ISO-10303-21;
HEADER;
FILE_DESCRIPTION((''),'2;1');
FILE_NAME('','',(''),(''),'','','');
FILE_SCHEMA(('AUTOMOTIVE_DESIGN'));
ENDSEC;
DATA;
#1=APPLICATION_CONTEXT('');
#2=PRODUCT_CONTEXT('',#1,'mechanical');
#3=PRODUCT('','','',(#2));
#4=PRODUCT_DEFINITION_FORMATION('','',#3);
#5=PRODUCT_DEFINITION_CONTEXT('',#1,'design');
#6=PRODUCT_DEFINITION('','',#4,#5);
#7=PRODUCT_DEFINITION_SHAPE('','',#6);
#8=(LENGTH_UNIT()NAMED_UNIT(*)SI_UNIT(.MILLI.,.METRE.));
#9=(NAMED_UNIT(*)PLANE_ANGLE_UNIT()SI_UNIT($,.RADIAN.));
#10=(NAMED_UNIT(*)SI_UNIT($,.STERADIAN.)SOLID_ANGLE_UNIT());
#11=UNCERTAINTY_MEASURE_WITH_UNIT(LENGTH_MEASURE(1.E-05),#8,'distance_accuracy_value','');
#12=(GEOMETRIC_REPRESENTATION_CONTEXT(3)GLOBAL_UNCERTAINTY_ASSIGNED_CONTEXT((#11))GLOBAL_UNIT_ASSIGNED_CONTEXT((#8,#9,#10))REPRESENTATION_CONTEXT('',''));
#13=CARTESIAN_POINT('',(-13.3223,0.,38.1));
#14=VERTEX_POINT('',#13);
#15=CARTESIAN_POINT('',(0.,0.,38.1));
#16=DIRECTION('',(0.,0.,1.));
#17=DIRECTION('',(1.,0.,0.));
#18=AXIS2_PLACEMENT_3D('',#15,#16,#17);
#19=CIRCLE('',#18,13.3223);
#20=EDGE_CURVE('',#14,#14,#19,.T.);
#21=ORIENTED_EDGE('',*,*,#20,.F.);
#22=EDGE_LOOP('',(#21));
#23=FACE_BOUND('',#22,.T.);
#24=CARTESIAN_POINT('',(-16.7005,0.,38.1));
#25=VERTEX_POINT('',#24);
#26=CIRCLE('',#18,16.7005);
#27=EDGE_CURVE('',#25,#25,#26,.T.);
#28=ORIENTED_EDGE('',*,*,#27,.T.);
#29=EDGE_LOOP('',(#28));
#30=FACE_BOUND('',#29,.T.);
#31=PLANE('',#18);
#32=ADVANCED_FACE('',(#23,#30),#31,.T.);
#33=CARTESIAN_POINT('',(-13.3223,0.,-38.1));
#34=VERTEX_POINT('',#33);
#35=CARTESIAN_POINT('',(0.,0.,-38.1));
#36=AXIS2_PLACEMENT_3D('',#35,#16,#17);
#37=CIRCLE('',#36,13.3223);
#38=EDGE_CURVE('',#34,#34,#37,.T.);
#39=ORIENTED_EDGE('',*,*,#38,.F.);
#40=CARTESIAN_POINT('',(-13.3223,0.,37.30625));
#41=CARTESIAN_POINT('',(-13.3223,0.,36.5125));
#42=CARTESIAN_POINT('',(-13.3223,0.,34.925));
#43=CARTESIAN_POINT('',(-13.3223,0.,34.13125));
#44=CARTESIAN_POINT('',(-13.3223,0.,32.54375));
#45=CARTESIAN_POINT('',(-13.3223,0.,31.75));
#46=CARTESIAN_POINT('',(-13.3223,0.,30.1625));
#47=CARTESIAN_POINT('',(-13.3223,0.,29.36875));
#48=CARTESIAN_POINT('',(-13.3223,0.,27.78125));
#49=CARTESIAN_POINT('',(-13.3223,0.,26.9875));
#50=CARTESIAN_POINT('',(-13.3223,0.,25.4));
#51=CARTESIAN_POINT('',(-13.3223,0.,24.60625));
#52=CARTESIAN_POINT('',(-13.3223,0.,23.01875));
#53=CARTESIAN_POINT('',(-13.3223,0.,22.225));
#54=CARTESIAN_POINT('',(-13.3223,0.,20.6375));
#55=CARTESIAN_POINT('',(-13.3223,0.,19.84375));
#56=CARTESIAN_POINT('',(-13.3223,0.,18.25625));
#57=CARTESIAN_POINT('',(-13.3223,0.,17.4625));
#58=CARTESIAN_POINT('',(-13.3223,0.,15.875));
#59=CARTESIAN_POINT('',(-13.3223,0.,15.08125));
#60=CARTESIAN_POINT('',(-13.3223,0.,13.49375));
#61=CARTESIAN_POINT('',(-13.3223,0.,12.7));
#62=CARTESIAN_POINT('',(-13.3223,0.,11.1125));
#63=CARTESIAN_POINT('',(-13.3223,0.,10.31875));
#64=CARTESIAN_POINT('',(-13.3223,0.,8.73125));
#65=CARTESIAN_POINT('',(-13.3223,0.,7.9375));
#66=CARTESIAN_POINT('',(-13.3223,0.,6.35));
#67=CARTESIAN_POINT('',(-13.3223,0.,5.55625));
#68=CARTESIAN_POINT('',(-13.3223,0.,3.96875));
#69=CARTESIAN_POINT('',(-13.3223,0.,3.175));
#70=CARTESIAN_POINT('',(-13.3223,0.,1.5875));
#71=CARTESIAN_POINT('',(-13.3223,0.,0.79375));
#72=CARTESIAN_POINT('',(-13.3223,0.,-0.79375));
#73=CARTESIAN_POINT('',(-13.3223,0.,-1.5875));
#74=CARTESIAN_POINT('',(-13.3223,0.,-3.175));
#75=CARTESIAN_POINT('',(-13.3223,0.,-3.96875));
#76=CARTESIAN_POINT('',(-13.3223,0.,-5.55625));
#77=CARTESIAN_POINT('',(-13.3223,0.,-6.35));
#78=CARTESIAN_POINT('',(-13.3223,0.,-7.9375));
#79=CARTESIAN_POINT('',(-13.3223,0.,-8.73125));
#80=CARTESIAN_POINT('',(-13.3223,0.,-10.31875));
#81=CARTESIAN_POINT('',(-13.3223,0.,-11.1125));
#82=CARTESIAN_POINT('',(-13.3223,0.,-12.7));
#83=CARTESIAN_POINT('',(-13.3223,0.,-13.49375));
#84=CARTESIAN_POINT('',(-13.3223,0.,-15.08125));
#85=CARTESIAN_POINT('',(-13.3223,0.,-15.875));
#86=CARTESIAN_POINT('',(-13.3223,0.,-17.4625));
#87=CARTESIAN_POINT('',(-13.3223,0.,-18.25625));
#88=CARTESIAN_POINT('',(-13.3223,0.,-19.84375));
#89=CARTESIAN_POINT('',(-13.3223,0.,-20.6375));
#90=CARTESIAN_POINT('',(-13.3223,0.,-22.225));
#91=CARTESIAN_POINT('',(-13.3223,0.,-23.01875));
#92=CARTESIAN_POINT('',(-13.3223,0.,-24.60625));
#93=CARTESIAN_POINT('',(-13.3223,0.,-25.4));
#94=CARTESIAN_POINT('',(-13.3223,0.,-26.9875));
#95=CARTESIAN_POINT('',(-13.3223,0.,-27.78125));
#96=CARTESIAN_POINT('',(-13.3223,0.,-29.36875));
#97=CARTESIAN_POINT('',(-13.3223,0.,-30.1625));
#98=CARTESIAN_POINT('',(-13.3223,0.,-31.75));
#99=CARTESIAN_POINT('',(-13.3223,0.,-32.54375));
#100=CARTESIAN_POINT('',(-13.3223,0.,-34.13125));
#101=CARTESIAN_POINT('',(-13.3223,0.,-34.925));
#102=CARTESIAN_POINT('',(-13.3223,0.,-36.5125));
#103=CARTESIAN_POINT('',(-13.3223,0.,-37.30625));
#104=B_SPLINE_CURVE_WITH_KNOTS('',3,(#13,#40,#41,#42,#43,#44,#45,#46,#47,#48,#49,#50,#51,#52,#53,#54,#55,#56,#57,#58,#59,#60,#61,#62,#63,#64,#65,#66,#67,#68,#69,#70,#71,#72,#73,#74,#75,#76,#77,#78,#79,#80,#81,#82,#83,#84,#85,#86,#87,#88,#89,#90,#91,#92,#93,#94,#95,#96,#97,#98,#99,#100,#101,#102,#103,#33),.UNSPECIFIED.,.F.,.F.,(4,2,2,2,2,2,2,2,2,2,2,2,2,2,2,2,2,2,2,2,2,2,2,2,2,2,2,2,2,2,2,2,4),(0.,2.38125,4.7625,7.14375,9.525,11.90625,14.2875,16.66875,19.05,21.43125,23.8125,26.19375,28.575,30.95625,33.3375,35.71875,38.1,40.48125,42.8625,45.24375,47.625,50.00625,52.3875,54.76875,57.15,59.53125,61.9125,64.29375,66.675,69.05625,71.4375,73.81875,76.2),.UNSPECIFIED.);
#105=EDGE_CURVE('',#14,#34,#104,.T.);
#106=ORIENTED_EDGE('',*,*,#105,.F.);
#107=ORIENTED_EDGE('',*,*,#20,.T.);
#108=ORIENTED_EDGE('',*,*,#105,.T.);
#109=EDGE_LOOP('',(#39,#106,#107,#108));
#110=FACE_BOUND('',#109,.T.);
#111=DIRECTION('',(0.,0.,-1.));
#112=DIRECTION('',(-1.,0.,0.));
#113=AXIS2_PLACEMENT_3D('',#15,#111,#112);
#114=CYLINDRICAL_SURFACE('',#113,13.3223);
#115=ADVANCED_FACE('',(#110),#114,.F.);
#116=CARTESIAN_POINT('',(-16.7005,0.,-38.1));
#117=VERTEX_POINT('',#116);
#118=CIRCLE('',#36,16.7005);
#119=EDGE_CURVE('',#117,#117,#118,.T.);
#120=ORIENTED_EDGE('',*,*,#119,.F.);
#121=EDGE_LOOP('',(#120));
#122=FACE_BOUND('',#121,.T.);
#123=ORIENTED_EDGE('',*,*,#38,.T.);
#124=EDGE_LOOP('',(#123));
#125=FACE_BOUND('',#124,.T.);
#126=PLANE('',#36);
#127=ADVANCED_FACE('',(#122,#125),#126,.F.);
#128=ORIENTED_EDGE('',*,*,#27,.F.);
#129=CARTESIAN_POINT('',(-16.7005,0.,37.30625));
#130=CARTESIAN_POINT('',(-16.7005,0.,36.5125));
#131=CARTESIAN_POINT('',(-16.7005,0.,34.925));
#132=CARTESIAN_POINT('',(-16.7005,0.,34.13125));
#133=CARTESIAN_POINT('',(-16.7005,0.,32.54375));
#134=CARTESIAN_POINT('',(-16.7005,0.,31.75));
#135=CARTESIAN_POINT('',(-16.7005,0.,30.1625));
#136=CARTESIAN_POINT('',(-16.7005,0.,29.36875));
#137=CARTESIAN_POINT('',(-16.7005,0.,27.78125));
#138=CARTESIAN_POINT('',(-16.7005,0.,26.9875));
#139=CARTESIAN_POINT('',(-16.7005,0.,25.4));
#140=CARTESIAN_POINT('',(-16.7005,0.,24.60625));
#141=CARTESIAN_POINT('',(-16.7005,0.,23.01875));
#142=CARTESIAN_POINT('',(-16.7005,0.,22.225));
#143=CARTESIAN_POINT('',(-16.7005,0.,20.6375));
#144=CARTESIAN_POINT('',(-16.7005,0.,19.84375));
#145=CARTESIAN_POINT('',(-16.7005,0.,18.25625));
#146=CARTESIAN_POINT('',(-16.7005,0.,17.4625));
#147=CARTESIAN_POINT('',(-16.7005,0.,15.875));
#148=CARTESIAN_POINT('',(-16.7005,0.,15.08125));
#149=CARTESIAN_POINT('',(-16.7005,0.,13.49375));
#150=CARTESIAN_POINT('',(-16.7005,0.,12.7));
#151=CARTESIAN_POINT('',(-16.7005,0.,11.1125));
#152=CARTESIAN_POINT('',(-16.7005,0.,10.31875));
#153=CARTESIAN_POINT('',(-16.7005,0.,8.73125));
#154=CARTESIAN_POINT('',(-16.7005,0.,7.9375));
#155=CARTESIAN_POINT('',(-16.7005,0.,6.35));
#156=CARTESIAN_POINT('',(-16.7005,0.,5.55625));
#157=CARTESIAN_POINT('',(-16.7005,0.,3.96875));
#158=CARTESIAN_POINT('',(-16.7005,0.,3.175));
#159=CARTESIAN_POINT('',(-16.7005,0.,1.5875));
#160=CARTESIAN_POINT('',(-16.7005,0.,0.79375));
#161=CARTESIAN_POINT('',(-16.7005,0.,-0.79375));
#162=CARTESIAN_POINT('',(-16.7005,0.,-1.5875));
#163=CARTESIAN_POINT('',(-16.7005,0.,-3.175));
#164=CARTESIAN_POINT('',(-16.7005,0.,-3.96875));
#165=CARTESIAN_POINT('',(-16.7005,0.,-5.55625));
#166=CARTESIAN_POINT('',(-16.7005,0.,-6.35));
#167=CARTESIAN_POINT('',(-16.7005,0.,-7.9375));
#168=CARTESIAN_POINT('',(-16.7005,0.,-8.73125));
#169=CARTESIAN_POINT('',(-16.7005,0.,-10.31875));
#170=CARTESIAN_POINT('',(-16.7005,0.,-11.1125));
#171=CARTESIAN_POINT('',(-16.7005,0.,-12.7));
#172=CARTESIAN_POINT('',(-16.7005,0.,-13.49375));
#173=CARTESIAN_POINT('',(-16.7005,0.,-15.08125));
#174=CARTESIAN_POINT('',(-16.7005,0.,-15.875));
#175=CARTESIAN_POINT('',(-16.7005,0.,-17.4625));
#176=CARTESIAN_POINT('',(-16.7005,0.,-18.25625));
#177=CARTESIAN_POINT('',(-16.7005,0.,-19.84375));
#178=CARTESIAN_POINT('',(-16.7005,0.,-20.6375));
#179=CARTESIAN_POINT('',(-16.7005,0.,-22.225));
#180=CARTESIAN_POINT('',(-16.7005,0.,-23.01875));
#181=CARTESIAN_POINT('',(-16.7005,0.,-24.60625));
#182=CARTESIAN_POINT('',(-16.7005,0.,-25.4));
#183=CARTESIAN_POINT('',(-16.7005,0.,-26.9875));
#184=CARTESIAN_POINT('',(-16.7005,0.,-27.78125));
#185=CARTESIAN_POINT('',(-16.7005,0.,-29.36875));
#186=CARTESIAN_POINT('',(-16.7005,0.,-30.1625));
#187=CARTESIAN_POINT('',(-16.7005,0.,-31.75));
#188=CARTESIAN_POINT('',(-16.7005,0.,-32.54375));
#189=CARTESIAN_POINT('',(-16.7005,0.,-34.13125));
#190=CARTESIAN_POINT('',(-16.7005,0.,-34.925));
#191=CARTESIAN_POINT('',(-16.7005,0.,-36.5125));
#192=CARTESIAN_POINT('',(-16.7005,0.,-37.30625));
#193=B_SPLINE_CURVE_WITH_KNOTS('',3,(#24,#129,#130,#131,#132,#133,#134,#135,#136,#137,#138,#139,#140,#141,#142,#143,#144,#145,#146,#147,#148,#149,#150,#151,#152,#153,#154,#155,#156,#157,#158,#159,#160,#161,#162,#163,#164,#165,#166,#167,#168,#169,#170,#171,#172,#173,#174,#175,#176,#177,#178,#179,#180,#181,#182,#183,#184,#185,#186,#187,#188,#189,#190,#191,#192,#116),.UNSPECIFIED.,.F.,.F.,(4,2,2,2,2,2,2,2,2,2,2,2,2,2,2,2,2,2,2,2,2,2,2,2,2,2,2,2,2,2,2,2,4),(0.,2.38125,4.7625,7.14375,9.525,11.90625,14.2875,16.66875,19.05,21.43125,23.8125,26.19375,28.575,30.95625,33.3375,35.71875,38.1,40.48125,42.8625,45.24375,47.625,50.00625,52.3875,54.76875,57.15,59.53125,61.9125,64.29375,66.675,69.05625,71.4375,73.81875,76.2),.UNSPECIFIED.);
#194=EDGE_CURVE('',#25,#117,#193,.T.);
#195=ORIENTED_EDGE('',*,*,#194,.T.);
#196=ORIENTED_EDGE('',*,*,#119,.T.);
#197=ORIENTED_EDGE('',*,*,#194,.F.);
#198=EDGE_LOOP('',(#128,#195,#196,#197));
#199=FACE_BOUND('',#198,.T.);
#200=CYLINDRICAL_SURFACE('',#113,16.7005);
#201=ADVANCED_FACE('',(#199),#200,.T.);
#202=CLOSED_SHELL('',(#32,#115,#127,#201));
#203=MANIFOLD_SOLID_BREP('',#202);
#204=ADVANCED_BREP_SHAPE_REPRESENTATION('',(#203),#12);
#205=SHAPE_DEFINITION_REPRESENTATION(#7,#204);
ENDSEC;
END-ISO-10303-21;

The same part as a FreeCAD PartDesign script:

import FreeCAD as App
import Part
import Sketcher
Q = App.Units.Quantity

doc = App.newDocument("Part")
params = doc.addObject("Spreadsheet::Sheet", "Params")
for row, (alias, value) in enumerate([
    ("sketch1_diameter", "1.315 in"),
    ("sketch1_diameter2", "1.049 in"),
    ("pad1_length", "3 in"),
], start=1):
    params.set(f"A{row}", alias)
    params.set(f"B{row}", "=" + value)
    params.setAlias(f"B{row}", alias)

body = doc.addObject("PartDesign::Body", "Body")

# Sketch on XY plane
sketch1 = body.newObject("Sketcher::SketchObject", "Sketch")
sketch1.AttachmentSupport = (doc.getObject("XY_Plane"), [""])
sketch1.MapMode = "FlatFace"
sketch1.addGeometry([
    Part.Circle(App.Vector(0, 0, 0), App.Vector(0, 0, 1), 17),
    Part.Circle(App.Vector(0, 0, 0), App.Vector(0, 0, 1), 13),
], False)
sketch1.addConstraint([
    Sketcher.Constraint("Coincident", 0, 3, -1, 1),
    Sketcher.Constraint("Coincident", 1, 3, -1, 1),
    Sketcher.Constraint("Diameter", 0, Q("1.315 in")),
    Sketcher.Constraint("Diameter", 1, Q("1.049 in")),
])
sketch1.setExpression("Constraints[2]", "Params.sketch1_diameter")
sketch1.setExpression("Constraints[3]", "Params.sketch1_diameter2")
pad1 = body.newObject("PartDesign::Pad", "Pad")
pad1.Profile = sketch1
pad1.setExpression("Length", "Params.pad1_length")
pad1.Midplane = True

doc.recompute()
